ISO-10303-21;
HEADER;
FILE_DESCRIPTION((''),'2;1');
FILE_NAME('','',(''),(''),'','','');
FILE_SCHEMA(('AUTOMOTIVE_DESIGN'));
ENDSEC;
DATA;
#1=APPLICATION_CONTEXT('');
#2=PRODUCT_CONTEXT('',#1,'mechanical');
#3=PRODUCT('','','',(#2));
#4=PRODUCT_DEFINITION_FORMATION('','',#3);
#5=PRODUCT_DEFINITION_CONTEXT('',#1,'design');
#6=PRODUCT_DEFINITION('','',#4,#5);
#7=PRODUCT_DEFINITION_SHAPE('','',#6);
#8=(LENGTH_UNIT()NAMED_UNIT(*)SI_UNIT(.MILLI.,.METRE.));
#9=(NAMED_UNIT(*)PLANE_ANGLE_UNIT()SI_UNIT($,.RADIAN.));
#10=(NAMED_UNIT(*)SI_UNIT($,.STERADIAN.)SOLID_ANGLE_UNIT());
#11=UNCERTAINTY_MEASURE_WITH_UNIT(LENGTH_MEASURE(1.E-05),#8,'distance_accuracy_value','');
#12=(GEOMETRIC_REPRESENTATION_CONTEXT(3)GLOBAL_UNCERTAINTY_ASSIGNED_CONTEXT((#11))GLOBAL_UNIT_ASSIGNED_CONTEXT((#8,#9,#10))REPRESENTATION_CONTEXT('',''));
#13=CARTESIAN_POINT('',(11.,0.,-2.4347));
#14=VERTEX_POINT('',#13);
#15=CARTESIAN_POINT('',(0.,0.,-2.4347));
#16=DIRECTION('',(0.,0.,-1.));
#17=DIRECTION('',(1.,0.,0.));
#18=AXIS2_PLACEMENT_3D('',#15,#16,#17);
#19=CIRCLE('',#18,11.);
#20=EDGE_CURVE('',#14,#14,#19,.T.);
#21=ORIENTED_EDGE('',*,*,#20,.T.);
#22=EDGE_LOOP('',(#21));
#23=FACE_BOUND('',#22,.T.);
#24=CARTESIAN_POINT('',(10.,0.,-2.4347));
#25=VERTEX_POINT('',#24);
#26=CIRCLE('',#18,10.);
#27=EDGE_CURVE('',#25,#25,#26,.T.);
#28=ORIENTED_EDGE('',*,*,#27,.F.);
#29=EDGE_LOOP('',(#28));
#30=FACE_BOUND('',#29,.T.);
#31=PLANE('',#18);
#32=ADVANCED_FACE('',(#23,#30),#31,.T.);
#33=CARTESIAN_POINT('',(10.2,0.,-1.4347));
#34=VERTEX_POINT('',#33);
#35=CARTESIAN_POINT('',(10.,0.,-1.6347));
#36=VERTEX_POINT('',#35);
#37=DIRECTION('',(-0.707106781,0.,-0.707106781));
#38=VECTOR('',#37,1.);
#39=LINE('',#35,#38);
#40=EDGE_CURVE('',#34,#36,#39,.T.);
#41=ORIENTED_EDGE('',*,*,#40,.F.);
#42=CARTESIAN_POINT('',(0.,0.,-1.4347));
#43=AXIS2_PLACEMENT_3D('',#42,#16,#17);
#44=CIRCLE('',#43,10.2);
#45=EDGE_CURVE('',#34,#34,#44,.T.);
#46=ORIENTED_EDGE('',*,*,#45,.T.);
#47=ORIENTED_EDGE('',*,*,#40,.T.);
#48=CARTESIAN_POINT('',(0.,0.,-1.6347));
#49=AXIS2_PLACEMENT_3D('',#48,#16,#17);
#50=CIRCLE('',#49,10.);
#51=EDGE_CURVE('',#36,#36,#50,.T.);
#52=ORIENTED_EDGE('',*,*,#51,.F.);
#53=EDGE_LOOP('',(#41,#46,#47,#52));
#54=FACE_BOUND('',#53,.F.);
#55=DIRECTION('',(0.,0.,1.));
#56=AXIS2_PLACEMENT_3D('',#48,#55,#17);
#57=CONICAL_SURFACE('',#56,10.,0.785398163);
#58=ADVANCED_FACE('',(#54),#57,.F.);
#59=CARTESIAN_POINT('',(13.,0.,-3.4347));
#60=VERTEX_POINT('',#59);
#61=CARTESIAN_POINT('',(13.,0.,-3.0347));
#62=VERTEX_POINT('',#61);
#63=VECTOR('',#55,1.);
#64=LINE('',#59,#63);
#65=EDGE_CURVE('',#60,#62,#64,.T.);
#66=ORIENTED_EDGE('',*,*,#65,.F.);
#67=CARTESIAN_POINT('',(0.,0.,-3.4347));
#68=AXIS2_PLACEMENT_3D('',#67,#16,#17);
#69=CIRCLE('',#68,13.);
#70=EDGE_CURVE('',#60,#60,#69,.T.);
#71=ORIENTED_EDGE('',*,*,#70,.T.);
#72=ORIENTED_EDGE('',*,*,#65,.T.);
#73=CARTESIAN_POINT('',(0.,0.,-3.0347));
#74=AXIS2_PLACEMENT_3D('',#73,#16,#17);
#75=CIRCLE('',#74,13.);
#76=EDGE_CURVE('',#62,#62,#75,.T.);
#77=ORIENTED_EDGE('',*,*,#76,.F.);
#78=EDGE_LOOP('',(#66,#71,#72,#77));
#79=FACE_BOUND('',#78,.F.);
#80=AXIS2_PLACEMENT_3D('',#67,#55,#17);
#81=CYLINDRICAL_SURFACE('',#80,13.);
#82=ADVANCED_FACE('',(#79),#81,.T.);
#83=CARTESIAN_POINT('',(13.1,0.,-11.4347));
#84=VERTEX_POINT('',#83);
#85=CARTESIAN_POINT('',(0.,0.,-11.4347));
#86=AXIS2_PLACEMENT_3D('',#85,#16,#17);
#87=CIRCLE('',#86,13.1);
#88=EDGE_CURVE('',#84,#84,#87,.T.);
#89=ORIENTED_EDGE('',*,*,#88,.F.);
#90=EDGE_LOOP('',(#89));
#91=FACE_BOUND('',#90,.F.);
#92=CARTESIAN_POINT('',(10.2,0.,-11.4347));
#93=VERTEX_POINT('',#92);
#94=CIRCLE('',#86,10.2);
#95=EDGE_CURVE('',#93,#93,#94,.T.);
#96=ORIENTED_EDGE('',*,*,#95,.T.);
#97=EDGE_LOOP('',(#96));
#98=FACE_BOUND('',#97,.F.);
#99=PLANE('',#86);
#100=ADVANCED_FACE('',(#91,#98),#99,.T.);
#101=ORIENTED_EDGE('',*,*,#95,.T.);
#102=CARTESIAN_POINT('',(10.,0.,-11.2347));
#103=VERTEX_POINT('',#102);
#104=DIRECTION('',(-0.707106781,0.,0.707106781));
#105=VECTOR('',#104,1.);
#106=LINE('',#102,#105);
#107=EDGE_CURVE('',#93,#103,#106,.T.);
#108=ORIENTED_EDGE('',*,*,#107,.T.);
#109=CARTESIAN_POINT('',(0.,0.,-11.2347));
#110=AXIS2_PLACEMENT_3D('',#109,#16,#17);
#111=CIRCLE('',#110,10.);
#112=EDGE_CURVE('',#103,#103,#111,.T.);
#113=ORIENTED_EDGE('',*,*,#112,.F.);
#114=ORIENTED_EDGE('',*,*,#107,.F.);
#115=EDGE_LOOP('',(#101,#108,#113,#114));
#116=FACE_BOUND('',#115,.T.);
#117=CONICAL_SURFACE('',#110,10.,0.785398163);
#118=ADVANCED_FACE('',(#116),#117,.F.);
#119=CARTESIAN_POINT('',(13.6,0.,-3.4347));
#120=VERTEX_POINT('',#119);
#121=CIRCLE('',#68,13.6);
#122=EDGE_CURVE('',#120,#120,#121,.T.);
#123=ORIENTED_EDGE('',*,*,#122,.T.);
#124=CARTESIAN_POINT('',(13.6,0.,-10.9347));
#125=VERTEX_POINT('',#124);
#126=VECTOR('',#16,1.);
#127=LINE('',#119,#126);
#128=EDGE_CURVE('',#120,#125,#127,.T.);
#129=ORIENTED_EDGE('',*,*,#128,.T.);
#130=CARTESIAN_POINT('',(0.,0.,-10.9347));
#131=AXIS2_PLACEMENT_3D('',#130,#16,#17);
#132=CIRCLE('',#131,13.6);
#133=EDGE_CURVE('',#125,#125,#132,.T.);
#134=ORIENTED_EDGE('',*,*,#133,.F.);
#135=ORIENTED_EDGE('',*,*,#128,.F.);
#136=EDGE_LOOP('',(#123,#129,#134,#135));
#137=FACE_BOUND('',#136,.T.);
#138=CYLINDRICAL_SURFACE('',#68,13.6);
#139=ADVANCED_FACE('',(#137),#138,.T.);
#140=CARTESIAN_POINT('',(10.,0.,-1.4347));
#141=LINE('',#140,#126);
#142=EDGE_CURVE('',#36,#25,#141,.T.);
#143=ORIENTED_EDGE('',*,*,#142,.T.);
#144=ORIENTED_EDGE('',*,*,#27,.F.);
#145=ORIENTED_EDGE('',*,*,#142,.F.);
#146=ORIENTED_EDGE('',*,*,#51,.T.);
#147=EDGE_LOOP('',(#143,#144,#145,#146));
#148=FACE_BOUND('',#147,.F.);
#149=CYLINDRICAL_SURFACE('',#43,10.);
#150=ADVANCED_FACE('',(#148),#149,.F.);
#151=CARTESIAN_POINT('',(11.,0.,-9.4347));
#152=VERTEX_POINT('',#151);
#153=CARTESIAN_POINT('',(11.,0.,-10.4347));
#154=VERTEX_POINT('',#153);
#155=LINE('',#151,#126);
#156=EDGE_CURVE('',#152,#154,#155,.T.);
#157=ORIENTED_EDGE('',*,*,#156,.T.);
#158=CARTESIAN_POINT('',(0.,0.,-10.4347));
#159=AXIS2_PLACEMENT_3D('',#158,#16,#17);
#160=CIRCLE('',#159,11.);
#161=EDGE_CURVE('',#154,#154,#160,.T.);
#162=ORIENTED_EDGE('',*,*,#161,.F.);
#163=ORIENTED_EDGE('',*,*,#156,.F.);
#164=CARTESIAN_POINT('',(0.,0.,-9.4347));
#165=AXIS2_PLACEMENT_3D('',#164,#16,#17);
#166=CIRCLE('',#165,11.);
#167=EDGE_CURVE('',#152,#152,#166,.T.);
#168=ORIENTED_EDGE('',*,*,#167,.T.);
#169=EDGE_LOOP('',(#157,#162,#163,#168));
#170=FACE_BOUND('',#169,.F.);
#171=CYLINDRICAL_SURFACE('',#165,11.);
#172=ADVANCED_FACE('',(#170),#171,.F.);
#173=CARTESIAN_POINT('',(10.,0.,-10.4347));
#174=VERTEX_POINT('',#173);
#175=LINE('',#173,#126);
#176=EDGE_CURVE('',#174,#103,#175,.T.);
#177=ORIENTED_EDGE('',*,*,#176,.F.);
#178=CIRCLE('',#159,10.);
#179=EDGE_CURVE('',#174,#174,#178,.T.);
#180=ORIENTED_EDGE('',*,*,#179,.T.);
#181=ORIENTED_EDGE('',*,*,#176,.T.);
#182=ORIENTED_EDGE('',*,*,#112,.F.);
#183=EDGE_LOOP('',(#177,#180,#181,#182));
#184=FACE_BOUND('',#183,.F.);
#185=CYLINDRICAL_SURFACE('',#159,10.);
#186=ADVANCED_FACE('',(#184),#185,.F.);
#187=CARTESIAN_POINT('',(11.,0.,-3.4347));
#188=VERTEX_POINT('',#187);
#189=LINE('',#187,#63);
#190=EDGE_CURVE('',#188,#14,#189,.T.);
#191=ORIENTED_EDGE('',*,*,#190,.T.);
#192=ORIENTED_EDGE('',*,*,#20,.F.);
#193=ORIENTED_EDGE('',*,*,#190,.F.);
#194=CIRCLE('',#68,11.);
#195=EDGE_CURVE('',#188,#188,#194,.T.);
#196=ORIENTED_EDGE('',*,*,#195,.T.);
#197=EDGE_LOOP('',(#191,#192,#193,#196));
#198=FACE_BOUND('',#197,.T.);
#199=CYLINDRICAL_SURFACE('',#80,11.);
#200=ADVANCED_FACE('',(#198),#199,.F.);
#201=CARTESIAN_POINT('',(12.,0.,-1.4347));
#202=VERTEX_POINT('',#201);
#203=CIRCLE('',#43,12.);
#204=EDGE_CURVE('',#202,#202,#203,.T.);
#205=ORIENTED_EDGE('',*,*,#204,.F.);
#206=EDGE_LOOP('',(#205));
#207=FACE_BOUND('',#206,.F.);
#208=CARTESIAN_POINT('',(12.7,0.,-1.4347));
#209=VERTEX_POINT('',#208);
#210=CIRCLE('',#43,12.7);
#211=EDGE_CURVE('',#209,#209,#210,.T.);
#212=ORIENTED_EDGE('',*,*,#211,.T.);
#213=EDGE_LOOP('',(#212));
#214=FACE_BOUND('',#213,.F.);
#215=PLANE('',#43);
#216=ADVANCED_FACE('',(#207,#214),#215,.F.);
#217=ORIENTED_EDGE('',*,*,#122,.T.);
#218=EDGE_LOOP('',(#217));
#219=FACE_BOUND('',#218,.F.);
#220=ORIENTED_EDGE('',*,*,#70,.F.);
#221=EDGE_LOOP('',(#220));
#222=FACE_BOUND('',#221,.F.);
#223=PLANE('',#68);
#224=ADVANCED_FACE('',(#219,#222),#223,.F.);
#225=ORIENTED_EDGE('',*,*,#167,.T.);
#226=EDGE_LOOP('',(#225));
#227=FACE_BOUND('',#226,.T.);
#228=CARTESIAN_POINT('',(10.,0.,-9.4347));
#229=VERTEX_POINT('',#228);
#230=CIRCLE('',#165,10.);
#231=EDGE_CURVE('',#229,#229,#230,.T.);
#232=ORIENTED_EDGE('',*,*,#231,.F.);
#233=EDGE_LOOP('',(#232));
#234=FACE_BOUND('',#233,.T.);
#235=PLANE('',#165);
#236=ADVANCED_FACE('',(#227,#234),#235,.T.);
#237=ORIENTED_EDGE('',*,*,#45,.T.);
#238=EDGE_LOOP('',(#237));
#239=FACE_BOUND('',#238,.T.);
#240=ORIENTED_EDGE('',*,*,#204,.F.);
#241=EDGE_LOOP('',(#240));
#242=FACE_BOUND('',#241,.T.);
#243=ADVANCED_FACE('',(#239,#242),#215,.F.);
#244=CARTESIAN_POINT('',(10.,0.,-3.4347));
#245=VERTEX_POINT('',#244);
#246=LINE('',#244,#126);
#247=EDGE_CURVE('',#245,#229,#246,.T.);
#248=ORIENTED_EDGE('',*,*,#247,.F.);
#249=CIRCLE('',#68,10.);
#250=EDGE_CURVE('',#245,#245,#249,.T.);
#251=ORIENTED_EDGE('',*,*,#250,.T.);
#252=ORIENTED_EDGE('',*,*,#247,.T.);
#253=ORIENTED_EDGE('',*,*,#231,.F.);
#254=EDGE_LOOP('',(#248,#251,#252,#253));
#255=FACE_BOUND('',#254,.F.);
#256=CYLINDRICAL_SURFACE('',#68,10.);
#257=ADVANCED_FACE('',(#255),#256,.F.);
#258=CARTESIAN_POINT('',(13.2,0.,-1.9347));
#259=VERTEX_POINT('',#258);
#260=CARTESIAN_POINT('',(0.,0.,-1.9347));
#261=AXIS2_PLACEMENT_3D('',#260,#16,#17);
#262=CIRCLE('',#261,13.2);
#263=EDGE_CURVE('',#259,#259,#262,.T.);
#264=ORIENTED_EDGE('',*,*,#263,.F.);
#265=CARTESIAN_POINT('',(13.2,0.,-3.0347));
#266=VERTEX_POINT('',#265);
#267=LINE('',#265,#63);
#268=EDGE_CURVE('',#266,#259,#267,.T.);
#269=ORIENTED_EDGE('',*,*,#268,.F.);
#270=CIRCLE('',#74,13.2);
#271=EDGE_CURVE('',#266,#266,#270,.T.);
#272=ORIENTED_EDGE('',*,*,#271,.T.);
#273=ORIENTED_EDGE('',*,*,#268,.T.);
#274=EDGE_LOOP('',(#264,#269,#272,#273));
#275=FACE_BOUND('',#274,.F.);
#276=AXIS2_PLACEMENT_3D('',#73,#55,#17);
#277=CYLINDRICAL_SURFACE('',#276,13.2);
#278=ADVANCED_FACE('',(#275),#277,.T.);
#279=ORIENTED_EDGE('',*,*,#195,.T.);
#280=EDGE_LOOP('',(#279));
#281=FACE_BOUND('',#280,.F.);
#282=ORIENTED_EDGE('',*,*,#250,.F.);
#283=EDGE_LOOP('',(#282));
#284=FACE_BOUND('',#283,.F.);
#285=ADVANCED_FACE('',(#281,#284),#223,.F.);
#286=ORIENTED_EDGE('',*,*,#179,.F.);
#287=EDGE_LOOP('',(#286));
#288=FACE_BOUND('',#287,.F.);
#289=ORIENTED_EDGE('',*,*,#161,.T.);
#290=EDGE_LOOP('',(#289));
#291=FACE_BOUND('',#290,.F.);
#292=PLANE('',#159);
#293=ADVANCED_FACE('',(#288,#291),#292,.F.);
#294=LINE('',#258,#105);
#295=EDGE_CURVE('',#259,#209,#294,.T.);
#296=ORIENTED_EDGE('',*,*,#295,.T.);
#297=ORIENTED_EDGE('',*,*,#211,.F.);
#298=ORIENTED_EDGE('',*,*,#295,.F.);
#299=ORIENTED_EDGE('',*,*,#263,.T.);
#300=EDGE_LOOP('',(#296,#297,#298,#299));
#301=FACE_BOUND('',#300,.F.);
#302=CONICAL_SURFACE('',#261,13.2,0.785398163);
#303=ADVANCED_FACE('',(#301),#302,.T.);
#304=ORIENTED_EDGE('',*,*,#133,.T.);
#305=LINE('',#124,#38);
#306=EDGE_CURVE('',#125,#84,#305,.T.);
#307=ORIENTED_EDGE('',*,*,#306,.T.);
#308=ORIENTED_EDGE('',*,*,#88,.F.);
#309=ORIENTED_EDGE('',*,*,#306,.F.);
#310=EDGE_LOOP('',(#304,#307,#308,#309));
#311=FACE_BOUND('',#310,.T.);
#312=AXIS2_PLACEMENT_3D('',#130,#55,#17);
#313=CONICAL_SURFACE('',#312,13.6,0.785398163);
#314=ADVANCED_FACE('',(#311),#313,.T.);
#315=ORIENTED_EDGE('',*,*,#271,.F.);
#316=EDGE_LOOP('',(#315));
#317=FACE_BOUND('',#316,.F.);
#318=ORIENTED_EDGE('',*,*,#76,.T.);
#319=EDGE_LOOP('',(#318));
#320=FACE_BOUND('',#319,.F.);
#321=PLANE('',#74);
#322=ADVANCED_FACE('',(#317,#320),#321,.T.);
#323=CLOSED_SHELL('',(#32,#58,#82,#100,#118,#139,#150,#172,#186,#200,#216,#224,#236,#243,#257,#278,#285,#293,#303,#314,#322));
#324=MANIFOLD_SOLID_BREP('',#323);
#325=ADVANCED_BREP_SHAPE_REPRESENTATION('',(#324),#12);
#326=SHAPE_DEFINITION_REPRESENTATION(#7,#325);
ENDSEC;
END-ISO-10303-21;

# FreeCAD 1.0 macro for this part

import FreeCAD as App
import Part
import Sketcher

V = App.Vector


def edges_at(feature, points):
    """Names of the edges that pass closest to the given points."""
    edges = feature.Shape.Edges
    near = lambda p: min(range(len(edges)), key=lambda i: edges[i].distToShape(Part.Vertex(*p))[0])
    return sorted({f"Edge{near(p) + 1}" for p in points})

doc = App.newDocument("Part")
params = doc.addObject("Spreadsheet::Sheet", "Params")
for row, (alias, value) in enumerate([
    ("sketch1_width", "1 mm"),
    ("sketch1_height", "8 mm"),
    ("sketch1_width2", "0.6 mm"),
    ("revolution_angle", "360 deg"),
    ("chamfer_size", "0.5 mm"),
    ("chamfer2_size", "0.5 mm"),
    ("chamfer3_size", "0.2 mm"),
    ("chamfer4_size", "0.2 mm"),
], start=1):
    params.set(f"A{row}", alias)
    params.set(f"B{row}", "=" + value)
    params.setAlias(f"B{row}", alias)

body = doc.addObject("PartDesign::Body", "Body")

sketch1 = doc.addObject("Sketcher::SketchObject", "Sketch")
body.addObject(sketch1)
sketch1.AttachmentSupport = (doc.XZ_Plane, [""])
sketch1.MapMode = "FlatFace"
sketch1.addGeometry(Part.LineSegment(V(13, -3.43, 0), V(13.6, -3.43, 0)), False)
sketch1.addGeometry(Part.LineSegment(V(13.6, -3.43, 0), V(13.6, -11.43, 0)), False)
sketch1.addGeometry(Part.LineSegment(V(13.6, -11.43, 0), V(10, -11.43, 0)), False)
sketch1.addGeometry(Part.LineSegment(V(10, -11.43, 0), V(10, -10.43, 0)), False)
sketch1.addGeometry(Part.LineSegment(V(10, -10.43, 0), V(11, -10.43, 0)), False)
sketch1.addGeometry(Part.LineSegment(V(11, -10.43, 0), V(11, -9.43, 0)), False)
sketch1.addGeometry(Part.LineSegment(V(11, -9.43, 0), V(10, -9.43, 0)), False)
sketch1.addGeometry(Part.LineSegment(V(10, -9.43, 0), V(10, -3.43, 0)), False)
sketch1.addGeometry(Part.LineSegment(V(10, -3.43, 0), V(11, -3.43, 0)), False)
sketch1.addGeometry(Part.LineSegment(V(11, -3.43, 0), V(11, -2.43, 0)), False)
sketch1.addGeometry(Part.LineSegment(V(11, -2.43, 0), V(10, -2.43, 0)), False)
sketch1.addGeometry(Part.LineSegment(V(10, -2.43, 0), V(10, -1.43, 0)), False)
sketch1.addGeometry(Part.LineSegment(V(10, -1.43, 0), V(13.2, -1.43, 0)), False)
sketch1.addGeometry(Part.LineSegment(V(13.2, -1.43, 0), V(13.2, -3.03, 0)), False)
sketch1.addGeometry(Part.LineSegment(V(13.2, -3.03, 0), V(13, -3.03, 0)), False)
sketch1.addGeometry(Part.LineSegment(V(13, -3.03, 0), V(13, -3.43, 0)), False)
sketch1.addConstraint(Sketcher.Constraint("Coincident", 0, 2, 1, 1))
sketch1.addConstraint(Sketcher.Constraint("Coincident", 1, 2, 2, 1))
sketch1.addConstraint(Sketcher.Constraint("Coincident", 2, 2, 3, 1))
sketch1.addConstraint(Sketcher.Constraint("Coincident", 3, 2, 4, 1))
sketch1.addConstraint(Sketcher.Constraint("Coincident", 4, 2, 5, 1))
sketch1.addConstraint(Sketcher.Constraint("Coincident", 5, 2, 6, 1))
sketch1.addConstraint(Sketcher.Constraint("Coincident", 6, 2, 7, 1))
sketch1.addConstraint(Sketcher.Constraint("Coincident", 7, 2, 8, 1))
sketch1.addConstraint(Sketcher.Constraint("Coincident", 8, 2, 9, 1))
sketch1.addConstraint(Sketcher.Constraint("Coincident", 9, 2, 10, 1))
sketch1.addConstraint(Sketcher.Constraint("Coincident", 10, 2, 11, 1))
sketch1.addConstraint(Sketcher.Constraint("Coincident", 11, 2, 12, 1))
sketch1.addConstraint(Sketcher.Constraint("Coincident", 12, 2, 13, 1))
sketch1.addConstraint(Sketcher.Constraint("Coincident", 13, 2, 14, 1))
sketch1.addConstraint(Sketcher.Constraint("Coincident", 14, 2, 15, 1))
sketch1.addConstraint(Sketcher.Constraint("Coincident", 15, 2, 0, 1))
sketch1.addConstraint(Sketcher.Constraint("Horizontal", 0))
sketch1.addConstraint(Sketcher.Constraint("Vertical", 1))
sketch1.addConstraint(Sketcher.Constraint("Horizontal", 2))
sketch1.addConstraint(Sketcher.Constraint("Vertical", 3))
sketch1.addConstraint(Sketcher.Constraint("Horizontal", 4))
sketch1.addConstraint(Sketcher.Constraint("Vertical", 5))
sketch1.addConstraint(Sketcher.Constraint("Horizontal", 6))
sketch1.addConstraint(Sketcher.Constraint("Vertical", 7))
sketch1.addConstraint(Sketcher.Constraint("Horizontal", 8))
sketch1.addConstraint(Sketcher.Constraint("Vertical", 9))
sketch1.addConstraint(Sketcher.Constraint("Horizontal", 10))
sketch1.addConstraint(Sketcher.Constraint("Vertical", 11))
sketch1.addConstraint(Sketcher.Constraint("Horizontal", 12))
sketch1.addConstraint(Sketcher.Constraint("Vertical", 13))
sketch1.addConstraint(Sketcher.Constraint("Horizontal", 14))
sketch1.addConstraint(Sketcher.Constraint("Vertical", 15))
sketch1.addConstraint(Sketcher.Constraint("Horizontal", 0, 2, 7, 2))
sketch1.addConstraint(Sketcher.Constraint("Vertical", 3, 2, 6, 2))
sketch1.addConstraint(Sketcher.Constraint("Vertical", 5, 2, 8, 2))
sketch1.addConstraint(Sketcher.Constraint("Vertical", 7, 2, 10, 2))
sketch1.addConstraint(Sketcher.Constraint("Equal", 10, 3))
sketch1.addConstraint(Sketcher.Constraint("Equal", 3, 5))
sketch1.addConstraint(Sketcher.Constraint("Equal", 5, 9))
sketch1.addConstraint(Sketcher.Constraint("Equal", 9, 11))
sketch1.addConstraint(Sketcher.Constraint("DistanceX", 4, 1, 4, 2, 1.0))
sketch1.addConstraint(Sketcher.Constraint("DistanceY", 1, 2, 1, 1, 8.0))
sketch1.addConstraint(Sketcher.Constraint("DistanceX", 0, 1, 0, 2, 0.6))
sketch1.addConstraint(Sketcher.Constraint("DistanceX", -1, 1, 2, 2, 10.0))
sketch1.addConstraint(Sketcher.Constraint("DistanceX", 8, 2, 14, 2, 2.0))
sketch1.addConstraint(Sketcher.Constraint("DistanceX", -1, 1, 12, 2, 13.2))
sketch1.addConstraint(Sketcher.Constraint("DistanceY", 13, 2, 9, 2, 0.6))
sketch1.addConstraint(Sketcher.Constraint("DistanceY", 0, 2, -1, 1, 3.4347))
sketch1.setExpression("Constraints[40]", "Params.sketch1_width")
sketch1.setExpression("Constraints[41]", "Params.sketch1_height")
sketch1.setExpression("Constraints[42]", "Params.sketch1_width2")
revolution = doc.addObject("PartDesign::Revolution", "Revolution")
body.addObject(revolution)
revolution.Profile = sketch1
revolution.ReferenceAxis = (sketch1, ["V_Axis"])
revolution.setExpression("Angle", "Params.revolution_angle")
doc.recompute()

chamfer = doc.addObject("PartDesign::Chamfer", "Chamfer")
body.addObject(chamfer)
chamfer.Base = (revolution, edges_at(revolution, [(-13.2, 0, -1.435)]))
chamfer.setExpression("Size", "Params.chamfer_size")
doc.recompute()

chamfer2 = doc.addObject("PartDesign::Chamfer", "Chamfer001")
body.addObject(chamfer2)
chamfer2.Base = (chamfer, edges_at(chamfer, [(-13.6, 0, -11.435)]))
chamfer2.setExpression("Size", "Params.chamfer2_size")
doc.recompute()

chamfer3 = doc.addObject("PartDesign::Chamfer", "Chamfer002")
body.addObject(chamfer3)
chamfer3.Base = (chamfer2, edges_at(chamfer2, [(-10, 0, -1.435)]))
chamfer3.setExpression("Size", "Params.chamfer3_size")
doc.recompute()

chamfer4 = doc.addObject("PartDesign::Chamfer", "Chamfer003")
body.addObject(chamfer4)
chamfer4.Base = (chamfer3, edges_at(chamfer3, [(-10, 0, -11.435)]))
chamfer4.setExpression("Size", "Params.chamfer4_size")

doc.recompute()
